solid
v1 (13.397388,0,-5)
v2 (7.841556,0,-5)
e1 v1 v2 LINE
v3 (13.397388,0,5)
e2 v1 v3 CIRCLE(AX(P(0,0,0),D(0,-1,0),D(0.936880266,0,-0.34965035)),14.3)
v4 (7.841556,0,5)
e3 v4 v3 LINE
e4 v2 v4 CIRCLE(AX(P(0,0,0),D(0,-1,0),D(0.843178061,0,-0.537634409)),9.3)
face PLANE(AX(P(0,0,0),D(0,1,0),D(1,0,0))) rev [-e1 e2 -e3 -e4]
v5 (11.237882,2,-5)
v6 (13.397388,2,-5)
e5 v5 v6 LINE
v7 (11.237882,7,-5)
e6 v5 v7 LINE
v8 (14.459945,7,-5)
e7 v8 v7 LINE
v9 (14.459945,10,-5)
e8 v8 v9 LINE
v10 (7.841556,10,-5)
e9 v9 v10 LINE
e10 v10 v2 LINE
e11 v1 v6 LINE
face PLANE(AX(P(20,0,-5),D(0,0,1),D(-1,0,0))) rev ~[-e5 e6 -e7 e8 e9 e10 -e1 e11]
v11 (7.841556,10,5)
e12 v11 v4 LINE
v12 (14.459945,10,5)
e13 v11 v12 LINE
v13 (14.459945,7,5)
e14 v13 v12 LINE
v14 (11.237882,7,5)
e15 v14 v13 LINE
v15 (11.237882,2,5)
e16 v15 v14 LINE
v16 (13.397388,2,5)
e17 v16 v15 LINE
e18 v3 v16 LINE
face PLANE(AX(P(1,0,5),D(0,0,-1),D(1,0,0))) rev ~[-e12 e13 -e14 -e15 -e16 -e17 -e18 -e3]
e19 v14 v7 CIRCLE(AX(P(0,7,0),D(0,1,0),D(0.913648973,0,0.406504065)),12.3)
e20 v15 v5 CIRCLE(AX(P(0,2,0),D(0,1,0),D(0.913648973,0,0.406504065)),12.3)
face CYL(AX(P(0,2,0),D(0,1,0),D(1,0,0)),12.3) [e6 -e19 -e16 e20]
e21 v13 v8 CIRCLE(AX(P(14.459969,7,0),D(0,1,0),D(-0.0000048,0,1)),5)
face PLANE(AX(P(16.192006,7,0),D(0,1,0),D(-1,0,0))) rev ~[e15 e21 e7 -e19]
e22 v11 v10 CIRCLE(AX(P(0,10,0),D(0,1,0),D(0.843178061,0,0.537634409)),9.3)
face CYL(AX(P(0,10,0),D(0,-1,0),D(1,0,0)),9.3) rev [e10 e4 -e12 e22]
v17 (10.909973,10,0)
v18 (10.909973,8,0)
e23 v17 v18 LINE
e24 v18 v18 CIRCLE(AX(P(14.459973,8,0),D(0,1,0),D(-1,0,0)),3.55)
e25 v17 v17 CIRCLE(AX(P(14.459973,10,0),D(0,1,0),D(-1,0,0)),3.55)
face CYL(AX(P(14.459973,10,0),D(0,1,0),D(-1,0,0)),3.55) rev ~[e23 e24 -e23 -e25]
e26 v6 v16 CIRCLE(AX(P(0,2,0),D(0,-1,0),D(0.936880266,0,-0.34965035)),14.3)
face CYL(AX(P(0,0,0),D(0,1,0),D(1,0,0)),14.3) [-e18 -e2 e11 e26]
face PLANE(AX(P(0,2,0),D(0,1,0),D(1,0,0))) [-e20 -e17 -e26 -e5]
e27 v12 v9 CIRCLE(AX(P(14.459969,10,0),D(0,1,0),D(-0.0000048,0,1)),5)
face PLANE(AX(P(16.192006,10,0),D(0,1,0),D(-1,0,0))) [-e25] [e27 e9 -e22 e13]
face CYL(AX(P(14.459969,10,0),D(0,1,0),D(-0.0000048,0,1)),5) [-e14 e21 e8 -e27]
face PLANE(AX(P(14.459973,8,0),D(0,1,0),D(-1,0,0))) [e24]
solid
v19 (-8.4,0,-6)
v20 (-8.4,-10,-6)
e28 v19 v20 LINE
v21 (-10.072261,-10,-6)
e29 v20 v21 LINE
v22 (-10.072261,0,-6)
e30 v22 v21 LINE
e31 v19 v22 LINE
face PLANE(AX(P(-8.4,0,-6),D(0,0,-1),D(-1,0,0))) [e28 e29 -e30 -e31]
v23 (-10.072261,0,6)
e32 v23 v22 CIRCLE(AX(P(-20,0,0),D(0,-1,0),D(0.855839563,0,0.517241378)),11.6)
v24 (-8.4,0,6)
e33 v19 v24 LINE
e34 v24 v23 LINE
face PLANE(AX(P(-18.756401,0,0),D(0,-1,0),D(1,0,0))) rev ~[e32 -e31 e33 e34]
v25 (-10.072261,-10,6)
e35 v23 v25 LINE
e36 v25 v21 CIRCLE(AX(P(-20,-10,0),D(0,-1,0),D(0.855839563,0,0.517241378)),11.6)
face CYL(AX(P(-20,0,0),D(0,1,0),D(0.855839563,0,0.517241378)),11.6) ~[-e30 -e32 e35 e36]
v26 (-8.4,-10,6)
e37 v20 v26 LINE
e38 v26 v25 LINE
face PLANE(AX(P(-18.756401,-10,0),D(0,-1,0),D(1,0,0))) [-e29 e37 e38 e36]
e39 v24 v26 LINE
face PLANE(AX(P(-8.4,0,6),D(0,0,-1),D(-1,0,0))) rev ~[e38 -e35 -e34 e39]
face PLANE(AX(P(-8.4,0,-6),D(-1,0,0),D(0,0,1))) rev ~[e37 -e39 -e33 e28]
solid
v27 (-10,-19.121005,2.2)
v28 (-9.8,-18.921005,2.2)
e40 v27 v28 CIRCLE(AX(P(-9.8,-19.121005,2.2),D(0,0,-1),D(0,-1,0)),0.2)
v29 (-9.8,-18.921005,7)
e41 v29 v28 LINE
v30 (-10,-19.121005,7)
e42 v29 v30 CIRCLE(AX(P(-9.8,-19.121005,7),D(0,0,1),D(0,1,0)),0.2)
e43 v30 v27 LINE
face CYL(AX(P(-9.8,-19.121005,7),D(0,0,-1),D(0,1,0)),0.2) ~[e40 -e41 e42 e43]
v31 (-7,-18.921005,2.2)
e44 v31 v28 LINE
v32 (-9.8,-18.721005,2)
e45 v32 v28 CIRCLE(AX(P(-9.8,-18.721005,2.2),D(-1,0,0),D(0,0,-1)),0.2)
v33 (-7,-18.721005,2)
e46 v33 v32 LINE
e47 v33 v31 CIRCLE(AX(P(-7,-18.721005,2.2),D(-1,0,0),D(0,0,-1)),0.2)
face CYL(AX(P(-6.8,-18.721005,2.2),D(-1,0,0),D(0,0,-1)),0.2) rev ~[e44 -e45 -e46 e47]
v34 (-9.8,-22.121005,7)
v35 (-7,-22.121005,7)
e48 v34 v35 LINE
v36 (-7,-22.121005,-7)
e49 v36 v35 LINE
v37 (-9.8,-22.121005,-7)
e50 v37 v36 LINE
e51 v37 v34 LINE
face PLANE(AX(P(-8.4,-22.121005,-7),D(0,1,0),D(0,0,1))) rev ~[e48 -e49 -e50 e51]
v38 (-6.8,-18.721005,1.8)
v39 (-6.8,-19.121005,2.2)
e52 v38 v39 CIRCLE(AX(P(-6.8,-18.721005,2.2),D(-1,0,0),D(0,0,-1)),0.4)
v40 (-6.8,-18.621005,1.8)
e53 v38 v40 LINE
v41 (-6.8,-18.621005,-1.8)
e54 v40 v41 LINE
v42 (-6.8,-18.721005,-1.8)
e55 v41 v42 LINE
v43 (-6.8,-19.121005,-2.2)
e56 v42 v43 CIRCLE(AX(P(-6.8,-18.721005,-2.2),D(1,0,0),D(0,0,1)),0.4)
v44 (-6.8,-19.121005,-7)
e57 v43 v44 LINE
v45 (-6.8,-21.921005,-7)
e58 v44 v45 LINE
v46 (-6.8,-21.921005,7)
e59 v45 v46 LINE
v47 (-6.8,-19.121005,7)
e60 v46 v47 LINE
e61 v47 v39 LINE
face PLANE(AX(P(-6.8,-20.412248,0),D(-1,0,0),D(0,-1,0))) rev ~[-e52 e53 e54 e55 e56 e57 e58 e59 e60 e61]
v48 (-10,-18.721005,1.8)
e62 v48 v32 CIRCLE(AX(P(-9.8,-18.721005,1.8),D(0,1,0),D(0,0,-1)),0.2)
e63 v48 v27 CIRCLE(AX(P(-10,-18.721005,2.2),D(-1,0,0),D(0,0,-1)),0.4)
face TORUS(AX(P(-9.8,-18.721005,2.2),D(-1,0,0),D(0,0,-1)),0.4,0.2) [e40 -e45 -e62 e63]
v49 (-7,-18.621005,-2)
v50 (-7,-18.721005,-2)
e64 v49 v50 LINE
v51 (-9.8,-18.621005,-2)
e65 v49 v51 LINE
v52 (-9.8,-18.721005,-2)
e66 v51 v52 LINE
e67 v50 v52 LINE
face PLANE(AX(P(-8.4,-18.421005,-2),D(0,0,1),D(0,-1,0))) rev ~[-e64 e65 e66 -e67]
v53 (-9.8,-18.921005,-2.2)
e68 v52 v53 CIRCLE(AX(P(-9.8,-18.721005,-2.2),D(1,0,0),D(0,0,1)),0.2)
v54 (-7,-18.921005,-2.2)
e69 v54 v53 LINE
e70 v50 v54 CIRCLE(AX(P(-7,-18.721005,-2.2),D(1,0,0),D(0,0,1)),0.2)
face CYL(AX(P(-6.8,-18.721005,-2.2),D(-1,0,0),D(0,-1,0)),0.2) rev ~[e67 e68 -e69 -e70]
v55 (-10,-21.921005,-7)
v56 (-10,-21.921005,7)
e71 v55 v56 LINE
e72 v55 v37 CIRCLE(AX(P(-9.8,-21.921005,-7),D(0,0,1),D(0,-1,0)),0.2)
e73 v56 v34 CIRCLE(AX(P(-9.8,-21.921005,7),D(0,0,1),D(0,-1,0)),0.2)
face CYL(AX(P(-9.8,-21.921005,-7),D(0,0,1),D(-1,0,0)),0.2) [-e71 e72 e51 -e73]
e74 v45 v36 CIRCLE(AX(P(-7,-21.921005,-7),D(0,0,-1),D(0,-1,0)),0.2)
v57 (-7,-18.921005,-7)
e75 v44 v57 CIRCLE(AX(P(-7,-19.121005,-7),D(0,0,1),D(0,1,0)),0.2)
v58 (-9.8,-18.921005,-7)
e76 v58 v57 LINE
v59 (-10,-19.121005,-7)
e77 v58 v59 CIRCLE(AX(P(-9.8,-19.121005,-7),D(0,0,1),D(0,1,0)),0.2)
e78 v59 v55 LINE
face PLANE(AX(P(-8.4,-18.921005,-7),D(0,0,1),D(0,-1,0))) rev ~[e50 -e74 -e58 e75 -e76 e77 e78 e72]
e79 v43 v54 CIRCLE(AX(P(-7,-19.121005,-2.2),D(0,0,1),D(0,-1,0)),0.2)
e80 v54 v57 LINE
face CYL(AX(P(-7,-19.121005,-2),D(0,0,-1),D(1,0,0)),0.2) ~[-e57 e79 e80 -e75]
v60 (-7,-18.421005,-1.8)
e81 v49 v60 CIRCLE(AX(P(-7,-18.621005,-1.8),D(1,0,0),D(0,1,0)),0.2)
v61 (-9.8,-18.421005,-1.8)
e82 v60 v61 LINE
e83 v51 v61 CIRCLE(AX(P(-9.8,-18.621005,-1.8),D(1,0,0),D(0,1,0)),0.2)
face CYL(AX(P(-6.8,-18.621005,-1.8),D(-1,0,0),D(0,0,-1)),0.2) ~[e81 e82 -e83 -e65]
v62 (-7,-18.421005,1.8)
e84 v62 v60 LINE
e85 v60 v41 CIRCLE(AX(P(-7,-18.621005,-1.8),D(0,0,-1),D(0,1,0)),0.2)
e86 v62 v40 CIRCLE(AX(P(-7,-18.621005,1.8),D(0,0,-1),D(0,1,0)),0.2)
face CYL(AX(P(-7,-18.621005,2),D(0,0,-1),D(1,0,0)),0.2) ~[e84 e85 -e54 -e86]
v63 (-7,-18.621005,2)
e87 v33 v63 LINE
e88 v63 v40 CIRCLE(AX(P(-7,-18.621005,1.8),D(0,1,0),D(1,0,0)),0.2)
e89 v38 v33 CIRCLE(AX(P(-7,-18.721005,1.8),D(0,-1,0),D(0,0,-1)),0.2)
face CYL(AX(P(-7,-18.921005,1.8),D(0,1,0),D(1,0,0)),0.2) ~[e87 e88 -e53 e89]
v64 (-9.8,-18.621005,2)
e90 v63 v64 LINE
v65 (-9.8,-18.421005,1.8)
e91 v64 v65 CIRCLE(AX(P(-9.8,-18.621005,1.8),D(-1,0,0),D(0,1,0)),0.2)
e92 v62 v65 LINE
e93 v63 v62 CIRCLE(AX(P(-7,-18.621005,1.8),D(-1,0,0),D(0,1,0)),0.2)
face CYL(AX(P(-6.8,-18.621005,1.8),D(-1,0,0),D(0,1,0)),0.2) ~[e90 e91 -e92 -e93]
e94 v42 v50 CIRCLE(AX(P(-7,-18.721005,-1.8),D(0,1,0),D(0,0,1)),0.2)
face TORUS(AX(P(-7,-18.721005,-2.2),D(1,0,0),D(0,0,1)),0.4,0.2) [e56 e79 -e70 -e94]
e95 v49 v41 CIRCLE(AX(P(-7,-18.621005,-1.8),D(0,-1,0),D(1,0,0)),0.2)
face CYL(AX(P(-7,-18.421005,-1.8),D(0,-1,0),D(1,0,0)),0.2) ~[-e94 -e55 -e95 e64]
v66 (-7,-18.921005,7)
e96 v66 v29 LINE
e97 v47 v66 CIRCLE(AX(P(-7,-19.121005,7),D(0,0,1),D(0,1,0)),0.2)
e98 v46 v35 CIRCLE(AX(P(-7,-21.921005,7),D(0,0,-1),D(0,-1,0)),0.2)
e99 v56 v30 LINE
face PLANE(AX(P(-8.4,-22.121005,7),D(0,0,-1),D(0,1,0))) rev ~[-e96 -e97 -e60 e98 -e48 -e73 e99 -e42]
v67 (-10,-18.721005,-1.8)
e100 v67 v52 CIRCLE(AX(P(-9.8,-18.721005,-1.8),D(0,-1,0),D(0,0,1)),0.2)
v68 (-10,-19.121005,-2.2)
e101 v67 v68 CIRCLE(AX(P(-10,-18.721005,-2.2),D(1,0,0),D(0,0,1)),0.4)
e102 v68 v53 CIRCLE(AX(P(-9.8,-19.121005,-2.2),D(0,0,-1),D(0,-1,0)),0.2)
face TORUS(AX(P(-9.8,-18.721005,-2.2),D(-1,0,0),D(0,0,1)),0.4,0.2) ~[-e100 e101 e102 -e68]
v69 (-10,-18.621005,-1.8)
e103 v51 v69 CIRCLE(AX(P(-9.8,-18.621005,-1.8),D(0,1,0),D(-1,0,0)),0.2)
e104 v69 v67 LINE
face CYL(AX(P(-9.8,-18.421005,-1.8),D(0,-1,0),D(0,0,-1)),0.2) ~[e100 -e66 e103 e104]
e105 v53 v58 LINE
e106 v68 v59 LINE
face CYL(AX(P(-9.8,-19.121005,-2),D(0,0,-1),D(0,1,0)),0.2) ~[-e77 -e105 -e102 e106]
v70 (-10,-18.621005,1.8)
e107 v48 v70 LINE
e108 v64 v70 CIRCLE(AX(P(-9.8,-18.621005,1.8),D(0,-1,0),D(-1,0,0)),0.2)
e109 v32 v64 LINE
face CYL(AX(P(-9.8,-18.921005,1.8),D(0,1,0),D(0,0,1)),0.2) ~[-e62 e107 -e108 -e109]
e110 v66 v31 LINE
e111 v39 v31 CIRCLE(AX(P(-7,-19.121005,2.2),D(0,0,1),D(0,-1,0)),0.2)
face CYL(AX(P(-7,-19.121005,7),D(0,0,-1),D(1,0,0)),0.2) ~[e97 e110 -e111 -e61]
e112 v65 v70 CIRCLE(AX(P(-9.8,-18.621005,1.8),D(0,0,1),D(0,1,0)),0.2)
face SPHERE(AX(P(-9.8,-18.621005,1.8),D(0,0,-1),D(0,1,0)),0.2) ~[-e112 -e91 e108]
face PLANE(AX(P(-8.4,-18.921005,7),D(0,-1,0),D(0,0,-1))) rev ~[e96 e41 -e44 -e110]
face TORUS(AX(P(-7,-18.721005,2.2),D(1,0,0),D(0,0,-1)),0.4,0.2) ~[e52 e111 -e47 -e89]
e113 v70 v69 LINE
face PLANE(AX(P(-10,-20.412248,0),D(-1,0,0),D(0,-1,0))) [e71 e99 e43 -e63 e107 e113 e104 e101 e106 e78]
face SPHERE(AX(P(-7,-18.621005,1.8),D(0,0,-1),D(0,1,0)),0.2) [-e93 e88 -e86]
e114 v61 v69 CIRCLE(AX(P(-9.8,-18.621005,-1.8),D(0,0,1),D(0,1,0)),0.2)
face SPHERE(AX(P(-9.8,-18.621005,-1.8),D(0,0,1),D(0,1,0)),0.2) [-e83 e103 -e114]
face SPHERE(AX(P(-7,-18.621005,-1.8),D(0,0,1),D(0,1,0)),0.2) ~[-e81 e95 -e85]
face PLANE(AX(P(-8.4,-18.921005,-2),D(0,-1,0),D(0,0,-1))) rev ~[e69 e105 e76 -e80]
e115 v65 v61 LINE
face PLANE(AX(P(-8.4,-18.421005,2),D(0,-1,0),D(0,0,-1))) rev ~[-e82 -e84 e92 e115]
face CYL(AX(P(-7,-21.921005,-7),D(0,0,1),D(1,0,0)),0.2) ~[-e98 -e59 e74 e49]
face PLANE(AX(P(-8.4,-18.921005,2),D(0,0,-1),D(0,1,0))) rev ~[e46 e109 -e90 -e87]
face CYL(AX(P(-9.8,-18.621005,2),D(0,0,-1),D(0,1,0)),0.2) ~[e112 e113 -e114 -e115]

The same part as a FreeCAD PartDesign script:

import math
import FreeCAD as App
import Part
import Sketcher
from FreeCAD import Vector


def edges_at(feature, points):
    """Names of the edges that pass closest to the given points."""
    edges = feature.Shape.Edges
    near = lambda p: min(range(len(edges)), key=lambda i: edges[i].distToShape(Part.Vertex(*p))[0])
    return sorted({f"Edge{near(p) + 1}" for p in points})


def add_polygon(sketch, points):
    """Adds a closed chain of lines whose ends are joined by coincident constraints."""
    first, n = sketch.GeometryCount, len(points)
    for a, b in zip(points, points[1:] + points[:1]):
        sketch.addGeometry(Part.LineSegment(App.Vector(*a, 0), App.Vector(*b, 0)), False)
    for i in range(n):
        sketch.addConstraint(Sketcher.Constraint("Coincident", first + i, 2, first + (i + 1) % n, 1))

doc = App.newDocument("Part")
body = doc.addObject("PartDesign::Body", "Body")

# Sketch on XZ plane
sketch1 = body.newObject("Sketcher::SketchObject", "Sketch")
sketch1.AttachmentSupport = (doc.getObject("XZ_Plane"), [""])
sketch1.MapMode = "FlatFace"
sketch1.AttachmentOffset = App.Placement(Vector(0, 0, -10), App.Rotation())
sketch1.addGeometry(Part.Circle(Vector(14.5, 0, 0), Vector(0, 0, 1), 3.5), False)
sketch1.addConstraint(Sketcher.Constraint("PointOnObject", 0, 3, -1))
sketch1.addConstraint(Sketcher.Constraint("Diameter", 0, 7.1))
sketch1.addConstraint(Sketcher.Constraint("DistanceX", -1, 1, 0, 3, 14.459973))
pad1 = body.newObject("PartDesign::Pad", "Pad")
pad1.Profile = sketch1
pad1.Length = 2
body2 = doc.addObject("PartDesign::Body", "Body001")

# Sketch on XZ plane
sketch2 = body2.newObject("Sketcher::SketchObject", "Sketch001")
sketch2.AttachmentSupport = (doc.getObject("XZ_Plane001"), [""])
sketch2.MapMode = "FlatFace"
sketch2.AttachmentOffset = App.Placement(Vector(0, 0, -10), App.Rotation())
sketch2.addGeometry(Part.ArcOfCircle(Part.Circle(Vector(14, 0, 0), Vector(0, 0, 1), 5), math.radians(-90), math.radians(90)), False)
sketch2.addGeometry(Part.LineSegment(Vector(14, -5, 0), Vector(14, 5, 0)), False)
sketch2.addConstraint(Sketcher.Constraint("Coincident", 0, 1, 1, 1))
sketch2.addConstraint(Sketcher.Constraint("Coincident", 1, 2, 0, 2))
sketch2.addConstraint(Sketcher.Constraint("Vertical", 1))
sketch2.addConstraint(Sketcher.Constraint("PointOnObject", 0, 3, -1))
sketch2.addConstraint(Sketcher.Constraint("Radius", 0, 5.0))
sketch2.addConstraint(Sketcher.Constraint("DistanceX", -1, 1, 0, 3, 14.459969))
sketch2.addConstraint(Sketcher.Constraint("DistanceX", -1, 1, 0, 1, 14.459945))
pad2 = body2.newObject("PartDesign::Pad", "Pad001")
pad2.Profile = sketch2
pad2.Length = 3
body3 = doc.addObject("PartDesign::Body", "Body002")

# Sketch on XZ plane
sketch3 = body3.newObject("Sketcher::SketchObject", "Sketch002")
sketch3.AttachmentSupport = (doc.getObject("XZ_Plane002"), [""])
sketch3.MapMode = "FlatFace"
add_polygon(sketch3, [(1, 5), (20, 5), (20, 20), (-20, 20), (-20, -20), (20, -20), (20, -5), (1, -5)])  # lines 0-7
sketch3.addConstraint(Sketcher.Constraint("Horizontal", 0))
sketch3.addConstraint(Sketcher.Constraint("Vertical", 1))
sketch3.addConstraint(Sketcher.Constraint("Horizontal", 2))
sketch3.addConstraint(Sketcher.Constraint("Vertical", 3))
sketch3.addConstraint(Sketcher.Constraint("Horizontal", 4))
sketch3.addConstraint(Sketcher.Constraint("Vertical", 5))
sketch3.addConstraint(Sketcher.Constraint("Horizontal", 6))
sketch3.addConstraint(Sketcher.Constraint("Vertical", 7))
sketch3.addConstraint(Sketcher.Constraint("Symmetric", 1, 2, 3, 2, -1, 1))
sketch3.addConstraint(Sketcher.Constraint("Symmetric", 0, 2, 5, 2, -1))
sketch3.addConstraint(Sketcher.Constraint("Equal", 4, 3))
sketch3.addConstraint(Sketcher.Constraint("DistanceX", 0, 1, 0, 2, 19.0))
sketch3.addConstraint(Sketcher.Constraint("DistanceX", 2, 2, 2, 1, 40.0))
sketch3.addConstraint(Sketcher.Constraint("DistanceY", 1, 1, 1, 2, 15.0))
pad3 = body3.newObject("PartDesign::Pad", "Pad002")
pad3.Profile = sketch3
pad3.Length = 10
pad3.Reversed = True
body4 = doc.addObject("PartDesign::Body", "Body003")

# Sketch on XY plane
sketch4 = body4.newObject("Sketcher::SketchObject", "Sketch003")
sketch4.AttachmentSupport = (doc.getObject("XY_Plane003"), [""])
sketch4.MapMode = "FlatFace"
add_polygon(sketch4, [(9.3, 10), (9.3, 0), (14.3, 0), (14.3, 2), (12.3, 2), (12.3, 7), (15.3, 7), (15.3, 10)])  # lines 0-7
sketch4.addConstraint(Sketcher.Constraint("Vertical", 0))
sketch4.addConstraint(Sketcher.Constraint("Horizontal", 1))
sketch4.addConstraint(Sketcher.Constraint("Vertical", 2))
sketch4.addConstraint(Sketcher.Constraint("Horizontal", 3))
sketch4.addConstraint(Sketcher.Constraint("Vertical", 4))
sketch4.addConstraint(Sketcher.Constraint("Horizontal", 5))
sketch4.addConstraint(Sketcher.Constraint("Vertical", 6))
sketch4.addConstraint(Sketcher.Constraint("Horizontal", 7))
sketch4.addConstraint(Sketcher.Constraint("PointOnObject", 0, 2, -1))
sketch4.addConstraint(Sketcher.Constraint("Equal", 3, 2))
sketch4.addConstraint(Sketcher.Constraint("Equal", 1, 4))
sketch4.addConstraint(Sketcher.Constraint("Equal", 5, 6))
sketch4.addConstraint(Sketcher.Constraint("DistanceX", 1, 1, 1, 2, 5.0))
sketch4.addConstraint(Sketcher.Constraint("DistanceX", 3, 2, 3, 1, 2.0))
sketch4.addConstraint(Sketcher.Constraint("DistanceX", 5, 1, 5, 2, 3.0))
sketch4.addConstraint(Sketcher.Constraint("DistanceX", -1, 1, 0, 2, 9.3))
revolution = body4.newObject("PartDesign::Revolution", "Revolution")
revolution.Profile = sketch4
revolution.ReferenceAxis = (sketch4, ["V_Axis"])
revolution.Angle = 360
doc.recompute()

boolean = body4.newObject("PartDesign::Boolean", "Boolean")
boolean.Type = "Cut"
boolean.addObjects([body3])
doc.recompute()

boolean2 = body4.newObject("PartDesign::Boolean", "Boolean001")
boolean2.Type = "Fuse"
boolean2.addObjects([body2])
doc.recompute()

boolean3 = body4.newObject("PartDesign::Boolean", "Boolean002")
boolean3.Type = "Cut"
boolean3.addObjects([body])
body5 = doc.addObject("PartDesign::Body", "Body004")

# Sketch on XZ plane
sketch5 = body5.newObject("Sketcher::SketchObject", "Sketch004")
sketch5.AttachmentSupport = (doc.getObject("XZ_Plane004"), [""])
sketch5.MapMode = "FlatFace"
sketch5.addGeometry(Part.ArcOfCircle(Part.Circle(Vector(-20, 0, 0), Vector(0, 0, 1), 11.6), math.radians(31), math.radians(329)), False)
sketch5.addGeometry(Part.LineSegment(Vector(-10.1, -6, 0), Vector(-8.4, -6, 0)), False)
sketch5.addGeometry(Part.LineSegment(Vector(-8.4, -6, 0), Vector(-8.4, 6, 0)), False)
sketch5.addGeometry(Part.LineSegment(Vector(-8.4, 6, 0), Vector(-10.1, 6, 0)), False)
sketch5.addConstraint(Sketcher.Constraint("Coincident", 0, 2, 1, 1))
sketch5.addConstraint(Sketcher.Constraint("Coincident", 1, 2, 2, 1))
sketch5.addConstraint(Sketcher.Constraint("Coincident", 2, 2, 3, 1))
sketch5.addConstraint(Sketcher.Constraint("Coincident", 3, 2, 0, 1))
sketch5.addConstraint(Sketcher.Constraint("Horizontal", 1))
sketch5.addConstraint(Sketcher.Constraint("Vertical", 2))
sketch5.addConstraint(Sketcher.Constraint("Horizontal", 3))
sketch5.addConstraint(Sketcher.Constraint("Symmetric", 0, 2, 3, 2, -1))
sketch5.addConstraint(Sketcher.Constraint("Radius", 0, 11.6))
sketch5.addConstraint(Sketcher.Constraint("DistanceY", 2, 1, 2, 2, 12.0))
sketch5.addConstraint(Sketcher.Constraint("DistanceX", 0, 3, -1, 1, 20.0))
sketch5.addConstraint(Sketcher.Constraint("DistanceX", 1, 2, -1, 1, 8.4))
pad4 = body5.newObject("PartDesign::Pad", "Pad003")
pad4.Profile = sketch5
pad4.Length = 10
body6 = doc.addObject("PartDesign::Body", "Body005")

# Sketch on YZ plane
sketch6 = body6.newObject("Sketcher::SketchObject", "Sketch005")
sketch6.AttachmentSupport = (doc.getObject("YZ_Plane005"), [""])
sketch6.MapMode = "FlatFace"
sketch6.AttachmentOffset = App.Placement(Vector(0, 0, -8.4), App.Rotation())
add_polygon(sketch6, [(-18.9, 7), (-22.1, 7), (-22.1, -7), (-18.9, -7), (-18.9, -2), (-18.4, -2), (-18.4, 2), (-18.9, 2)])  # lines 0-7
sketch6.addConstraint(Sketcher.Constraint("Horizontal", 0))
sketch6.addConstraint(Sketcher.Constraint("Vertical", 1))
sketch6.addConstraint(Sketcher.Constraint("Horizontal", 2))
sketch6.addConstraint(Sketcher.Constraint("Vertical", 3))
sketch6.addConstraint(Sketcher.Constraint("Horizontal", 4))
sketch6.addConstraint(Sketcher.Constraint("Vertical", 5))
sketch6.addConstraint(Sketcher.Constraint("Horizontal", 6))
sketch6.addConstraint(Sketcher.Constraint("Vertical", 7))
sketch6.addConstraint(Sketcher.Constraint("Symmetric", 3, 2, 6, 2, -1))
sketch6.addConstraint(Sketcher.Constraint("Equal", 3, 7))
sketch6.addConstraint(Sketcher.Constraint("DistanceY", 1, 2, 1, 1, 14.0))
sketch6.addConstraint(Sketcher.Constraint("DistanceY", 3, 1, 3, 2, 5.0))
sketch6.addConstraint(Sketcher.Constraint("DistanceX", 0, 2, 0, 1, 3.2))
sketch6.addConstraint(Sketcher.Constraint("DistanceX", 4, 1, 4, 2, 0.5))
sketch6.addConstraint(Sketcher.Constraint("DistanceX", 0, 2, -1, 1, 22.121005))
pad5 = body6.newObject("PartDesign::Pad", "Pad004")
pad5.Profile = sketch6
pad5.Length = 3.2
pad5.Midplane = True
doc.recompute()

fillet = body6.newObject("PartDesign::Fillet", "Fillet")
fillet.Base = (pad5, edges_at(pad5, [
    (-10, -22.121, 0),
    (-10, -18.921, -4.5),
    (-6.8, -18.921, -4.5),
    (-10, -18.921, 4.5),
    (-6.8, -18.921, 4.5),
    (-6.8, -22.121, 0),
    (-10, -18.421, 0),
    (-6.8, -18.421, 0),
    (-8.4, -18.921, -2),
    (-8.4, -18.421, -2),
    (-10, -18.671, -2),
    (-6.8, -18.671, -2),
    (-8.4, -18.421, 2),
    (-8.4, -18.921, 2),
    (-10, -18.671, 2),
    (-6.8, -18.671, 2),
]))
fillet.Radius = 0.2

doc.recompute()
